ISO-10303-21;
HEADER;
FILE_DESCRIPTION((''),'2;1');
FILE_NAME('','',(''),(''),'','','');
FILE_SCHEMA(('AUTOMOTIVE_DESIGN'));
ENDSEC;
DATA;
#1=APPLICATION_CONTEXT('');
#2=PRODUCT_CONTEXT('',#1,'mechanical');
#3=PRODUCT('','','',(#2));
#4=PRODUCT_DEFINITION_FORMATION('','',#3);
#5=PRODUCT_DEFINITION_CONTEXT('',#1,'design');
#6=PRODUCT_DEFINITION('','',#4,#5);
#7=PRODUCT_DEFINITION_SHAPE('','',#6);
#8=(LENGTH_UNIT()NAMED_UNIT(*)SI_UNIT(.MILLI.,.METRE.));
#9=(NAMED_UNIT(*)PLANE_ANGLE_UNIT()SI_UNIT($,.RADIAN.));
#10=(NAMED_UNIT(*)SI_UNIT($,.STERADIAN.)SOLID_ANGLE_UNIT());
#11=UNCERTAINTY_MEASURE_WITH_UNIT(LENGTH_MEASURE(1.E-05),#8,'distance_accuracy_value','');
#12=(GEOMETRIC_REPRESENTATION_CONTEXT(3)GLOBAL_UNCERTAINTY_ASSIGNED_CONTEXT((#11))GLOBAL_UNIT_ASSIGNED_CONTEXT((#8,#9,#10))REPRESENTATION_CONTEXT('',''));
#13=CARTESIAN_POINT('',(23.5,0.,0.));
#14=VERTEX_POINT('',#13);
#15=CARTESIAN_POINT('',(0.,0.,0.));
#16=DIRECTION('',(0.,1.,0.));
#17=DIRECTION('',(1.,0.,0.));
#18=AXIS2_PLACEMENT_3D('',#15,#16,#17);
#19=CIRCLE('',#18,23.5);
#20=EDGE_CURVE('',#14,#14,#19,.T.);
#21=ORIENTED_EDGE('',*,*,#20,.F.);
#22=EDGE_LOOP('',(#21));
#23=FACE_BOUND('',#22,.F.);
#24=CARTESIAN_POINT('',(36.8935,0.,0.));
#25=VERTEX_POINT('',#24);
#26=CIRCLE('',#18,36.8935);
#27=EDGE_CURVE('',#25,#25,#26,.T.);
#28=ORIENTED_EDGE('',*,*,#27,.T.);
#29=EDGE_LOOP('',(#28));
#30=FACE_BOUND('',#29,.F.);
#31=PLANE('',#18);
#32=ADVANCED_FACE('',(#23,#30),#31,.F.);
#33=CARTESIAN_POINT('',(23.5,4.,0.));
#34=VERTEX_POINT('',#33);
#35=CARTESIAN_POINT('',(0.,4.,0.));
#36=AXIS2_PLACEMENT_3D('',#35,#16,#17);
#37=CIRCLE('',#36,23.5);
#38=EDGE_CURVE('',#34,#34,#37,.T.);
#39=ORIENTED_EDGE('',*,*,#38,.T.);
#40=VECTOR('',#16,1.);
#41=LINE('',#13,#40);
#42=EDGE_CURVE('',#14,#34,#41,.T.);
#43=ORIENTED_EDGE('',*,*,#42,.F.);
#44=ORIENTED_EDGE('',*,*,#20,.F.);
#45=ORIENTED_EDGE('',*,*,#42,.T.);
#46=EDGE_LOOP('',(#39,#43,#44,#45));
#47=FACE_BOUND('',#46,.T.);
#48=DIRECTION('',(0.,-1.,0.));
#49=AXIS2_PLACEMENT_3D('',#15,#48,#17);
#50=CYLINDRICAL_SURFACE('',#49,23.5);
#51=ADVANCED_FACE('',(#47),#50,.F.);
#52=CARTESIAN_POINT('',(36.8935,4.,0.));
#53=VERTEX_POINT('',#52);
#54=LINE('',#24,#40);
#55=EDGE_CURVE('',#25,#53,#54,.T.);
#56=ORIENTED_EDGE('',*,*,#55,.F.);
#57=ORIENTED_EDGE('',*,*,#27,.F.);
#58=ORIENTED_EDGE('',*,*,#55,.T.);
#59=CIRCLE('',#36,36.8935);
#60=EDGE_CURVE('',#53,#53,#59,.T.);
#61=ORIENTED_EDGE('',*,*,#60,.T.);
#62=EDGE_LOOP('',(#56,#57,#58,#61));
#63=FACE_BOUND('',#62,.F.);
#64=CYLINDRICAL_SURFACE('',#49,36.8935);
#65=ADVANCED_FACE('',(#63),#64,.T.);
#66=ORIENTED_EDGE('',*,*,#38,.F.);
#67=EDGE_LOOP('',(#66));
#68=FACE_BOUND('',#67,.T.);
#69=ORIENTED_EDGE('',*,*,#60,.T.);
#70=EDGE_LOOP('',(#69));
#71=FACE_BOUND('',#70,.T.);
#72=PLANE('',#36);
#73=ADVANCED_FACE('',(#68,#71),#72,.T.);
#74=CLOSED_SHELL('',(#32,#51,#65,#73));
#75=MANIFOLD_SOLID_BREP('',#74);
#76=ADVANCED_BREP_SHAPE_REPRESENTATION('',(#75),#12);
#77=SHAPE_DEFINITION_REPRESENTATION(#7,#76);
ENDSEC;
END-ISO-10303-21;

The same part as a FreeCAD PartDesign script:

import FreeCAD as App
import Part
import Sketcher
Q = App.Units.Quantity

doc = App.newDocument("Part")
body = doc.addObject("PartDesign::Body", "Body")

# Sketch on XZ plane
sketch1 = body.newObject("Sketcher::SketchObject", "Sketch")
sketch1.AttachmentSupport = (doc.getObject("XZ_Plane"), [""])
sketch1.MapMode = "FlatFace"
sketch1.addGeometry(Part.Circle(App.Vector(0, 0, 0), App.Vector(0, 0, 1), 37), False)
sketch1.addGeometry(Part.Circle(App.Vector(0, 0, 0), App.Vector(0, 0, 1), 24), False)
sketch1.addConstraint(Sketcher.Constraint("Coincident", 0, 3, -1, 1))
sketch1.addConstraint(Sketcher.Constraint("Coincident", 1, 3, -1, 1))
sketch1.addConstraint(Sketcher.Constraint("Diameter", 0, Q("73.787 mm")))
sketch1.addConstraint(Sketcher.Constraint("Diameter", 1, Q("47 mm")))
pad1 = body.newObject("PartDesign::Pad", "Pad")
pad1.Profile = sketch1
pad1.Length = 4
pad1.Reversed = True

doc.recompute()
